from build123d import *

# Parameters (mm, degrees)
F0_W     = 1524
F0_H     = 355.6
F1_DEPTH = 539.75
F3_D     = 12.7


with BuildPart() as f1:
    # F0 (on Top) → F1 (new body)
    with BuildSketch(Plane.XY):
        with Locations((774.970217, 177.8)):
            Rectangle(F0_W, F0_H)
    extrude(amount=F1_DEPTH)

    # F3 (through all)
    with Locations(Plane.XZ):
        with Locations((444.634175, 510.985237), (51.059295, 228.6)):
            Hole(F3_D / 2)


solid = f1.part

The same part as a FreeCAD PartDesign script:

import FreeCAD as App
import Part
import Sketcher
Q = App.Units.Quantity


def add_polygon(sketch, points):
    """Adds a closed chain of lines whose ends are joined by coincident constraints."""
    first, n = sketch.GeometryCount, len(points)
    for a, b in zip(points, points[1:] + points[:1]):
        sketch.addGeometry(Part.LineSegment(App.Vector(*a, 0), App.Vector(*b, 0)), False)
    for i in range(n):
        sketch.addConstraint(Sketcher.Constraint("Coincident", first + i, 2, first + (i + 1) % n, 1))

doc = App.newDocument("Part")
body = doc.addObject("PartDesign::Body", "Body")

# Sketch on XY plane
sketch1 = body.newObject("Sketcher::SketchObject", "Sketch")
sketch1.AttachmentSupport = (doc.getObject("XY_Plane"), [""])
sketch1.MapMode = "FlatFace"
add_polygon(sketch1, [(12.970217, 355.6), (12.970217, 0), (1536.970217, 0), (1536.970217, 355.6)])  # lines 0-3
sketch1.addConstraint(Sketcher.Constraint("Vertical", 0))
sketch1.addConstraint(Sketcher.Constraint("Horizontal", 1))
sketch1.addConstraint(Sketcher.Constraint("Vertical", 2))
sketch1.addConstraint(Sketcher.Constraint("Horizontal", 3))
sketch1.addConstraint(Sketcher.Constraint("PointOnObject", 0, 2, -1))
sketch1.addConstraint(Sketcher.Constraint("DistanceX", 1, 1, 1, 2, Q("60 in")))
sketch1.addConstraint(Sketcher.Constraint("DistanceY", 0, 2, 0, 1, Q("14 in")))
sketch1.addConstraint(Sketcher.Constraint("DistanceX", -1, 1, 0, 2, Q("12.970217 mm")))
pad1 = body.newObject("PartDesign::Pad", "Pad")
pad1.Profile = sketch1
pad1.Length = Q("21.25 in")

# Sketch on XZ plane
sketch2 = body.newObject("Sketcher::SketchObject", "Sketch001")
sketch2.AttachmentSupport = (doc.getObject("XZ_Plane"), [""])
sketch2.MapMode = "FlatFace"
sketch2.addGeometry(Part.Circle(App.Vector(444.634175, 510.985237, 0), App.Vector(0, 0, 1), 6.35), False)
sketch2.addGeometry(Part.Circle(App.Vector(51.059295, 228.6, 0), App.Vector(0, 0, 1), 6.35), False)
sketch2.addConstraint(Sketcher.Constraint("Equal", 0, 1))
sketch2.addConstraint(Sketcher.Constraint("Diameter", 0, Q("0.5 in")))
sketch2.addConstraint(Sketcher.Constraint("DistanceY", -1, 1, 1, 3, Q("9 in")))
sketch2.addConstraint(Sketcher.Constraint("DistanceX", 1, 3, 0, 3, Q("393.57488 mm")))
sketch2.addConstraint(Sketcher.Constraint("DistanceX", -1, 1, 0, 3, Q("444.634175 mm")))
sketch2.addConstraint(Sketcher.Constraint("DistanceY", -1, 1, 0, 3, Q("510.985237 mm")))
doc.recompute()
hole = body.newObject("PartDesign::Hole", "Hole")
hole.Profile = sketch2
hole.ThreadType = "None"
hole.Diameter = Q("0.5 in")
hole.DepthType = "ThroughAll"

doc.recompute()
